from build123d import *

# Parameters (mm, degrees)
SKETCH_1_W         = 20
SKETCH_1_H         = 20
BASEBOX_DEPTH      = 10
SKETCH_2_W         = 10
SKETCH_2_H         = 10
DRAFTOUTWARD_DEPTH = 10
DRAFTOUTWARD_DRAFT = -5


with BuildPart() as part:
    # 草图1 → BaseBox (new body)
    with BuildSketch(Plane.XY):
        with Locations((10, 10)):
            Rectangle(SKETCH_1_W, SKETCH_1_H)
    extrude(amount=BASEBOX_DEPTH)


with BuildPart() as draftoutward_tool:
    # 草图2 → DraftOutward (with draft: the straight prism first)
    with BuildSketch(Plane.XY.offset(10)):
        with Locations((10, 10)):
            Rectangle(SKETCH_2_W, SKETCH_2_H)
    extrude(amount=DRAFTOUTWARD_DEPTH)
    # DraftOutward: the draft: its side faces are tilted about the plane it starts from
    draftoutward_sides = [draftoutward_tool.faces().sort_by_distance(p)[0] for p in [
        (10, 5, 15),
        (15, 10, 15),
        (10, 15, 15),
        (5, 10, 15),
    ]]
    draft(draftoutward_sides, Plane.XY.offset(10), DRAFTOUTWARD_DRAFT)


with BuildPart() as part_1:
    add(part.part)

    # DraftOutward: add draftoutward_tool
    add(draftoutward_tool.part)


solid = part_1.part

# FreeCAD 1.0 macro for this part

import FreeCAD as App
import Part
import Sketcher
Q = App.Units.Quantity


def faces_at(feature, points):
    """Names of the faces that lie closest to the given points."""
    faces = feature.Shape.Faces
    near = lambda p: min(range(len(faces)), key=lambda i: faces[i].distToShape(Part.Vertex(*p))[0])
    return sorted({f"Face{near(p) + 1}" for p in points})


def add_polygon(sketch, points):
    """Adds a closed chain of lines whose ends are joined by coincident constraints."""
    first, n = sketch.GeometryCount, len(points)
    for a, b in zip(points, points[1:] + points[:1]):
        sketch.addGeometry(Part.LineSegment(App.Vector(*a, 0), App.Vector(*b, 0)), False)
    for i in range(n):
        sketch.addConstraint(Sketcher.Constraint("Coincident", first + i, 2, first + (i + 1) % n, 1))

doc = App.newDocument("Part")
params = doc.addObject("Spreadsheet::Sheet", "Params")
for row, (alias, value) in enumerate([
    ("sketch1_width", "20 mm"),
    ("pad1_length", "10 mm"),
    ("sketch2_width", "10 mm"),
    ("pad2_length", "10 mm"),
    ("draft_angle", "5 deg"),
], start=1):
    params.set(f"A{row}", alias)
    params.set(f"B{row}", "=" + value)
    params.setAlias(f"B{row}", alias)

body = doc.addObject("PartDesign::Body", "Body")

# Sketch on XY plane
sketch1 = body.newObject("Sketcher::SketchObject", "Sketch")
sketch1.AttachmentSupport = (doc.getObject("XY_Plane"), [""])
sketch1.MapMode = "FlatFace"
add_polygon(sketch1, [(0, 20), (0, 0), (20, 0), (20, 20)])  # lines 0-3
sketch1.addConstraint(Sketcher.Constraint("Vertical", 0))
sketch1.addConstraint(Sketcher.Constraint("Horizontal", 1))
sketch1.addConstraint(Sketcher.Constraint("Vertical", 2))
sketch1.addConstraint(Sketcher.Constraint("Horizontal", 3))
sketch1.addConstraint(Sketcher.Constraint("Coincident", 0, 2, -1, 1))
sketch1.addConstraint(Sketcher.Constraint("Equal", 3, 0))
sketch1.addConstraint(Sketcher.Constraint("DistanceX", 1, 1, 1, 2, Q("20 mm")))
sketch1.setExpression("Constraints[10]", "Params.sketch1_width")
pad1 = body.newObject("PartDesign::Pad", "Pad")
pad1.Profile = sketch1
pad1.setExpression("Length", "Params.pad1_length")
body2 = doc.addObject("PartDesign::Body", "Body001")

# Sketch on XY plane
sketch2 = body2.newObject("Sketcher::SketchObject", "Sketch001")
sketch2.AttachmentSupport = (doc.getObject("XY_Plane001"), [""])
sketch2.MapMode = "FlatFace"
sketch2.AttachmentOffset = App.Placement(App.Vector(0, 0, 10), App.Rotation())
add_polygon(sketch2, [(5, 15), (5, 5), (15, 5), (15, 15)])  # lines 0-3
sketch2.addConstraint(Sketcher.Constraint("Vertical", 0))
sketch2.addConstraint(Sketcher.Constraint("Horizontal", 1))
sketch2.addConstraint(Sketcher.Constraint("Vertical", 2))
sketch2.addConstraint(Sketcher.Constraint("Horizontal", 3))
sketch2.addConstraint(Sketcher.Constraint("Equal", 3, 0))
sketch2.addConstraint(Sketcher.Constraint("DistanceX", 1, 1, 1, 2, Q("10 mm")))
sketch2.addConstraint(Sketcher.Constraint("DistanceX", -1, 1, 0, 2, Q("5 mm")))
sketch2.addConstraint(Sketcher.Constraint("DistanceY", -1, 1, 0, 2, Q("5 mm")))
sketch2.setExpression("Constraints[9]", "Params.sketch2_width")
pad2 = body2.newObject("PartDesign::Pad", "Pad001")
pad2.Profile = sketch2
pad2.setExpression("Length", "Params.pad2_length")
doc.recompute()

datumplane = body2.newObject("PartDesign::Plane", "DatumPlane")
datumplane.AttachmentSupport = (doc.getObject("XY_Plane001"), [""])
datumplane.MapMode = "FlatFace"
datumplane.AttachmentOffset = App.Placement(App.Vector(0, 0, 10), App.Rotation())
draft = body2.newObject("PartDesign::Draft", "Draft")
draft.Base = (pad2, faces_at(pad2, [
    (10, 5, 15),
    (15, 10, 15),
    (10, 15, 15),
    (5, 10, 15),
]))
draft.NeutralPlane = (datumplane, [""])
draft.setExpression("Angle", "Params.draft_angle")
draft.Reversed = True
doc.recompute()

boolean = body.newObject("PartDesign::Boolean", "Boolean")
boolean.Type = "Fuse"
boolean.addObjects([body2])

doc.recompute()
